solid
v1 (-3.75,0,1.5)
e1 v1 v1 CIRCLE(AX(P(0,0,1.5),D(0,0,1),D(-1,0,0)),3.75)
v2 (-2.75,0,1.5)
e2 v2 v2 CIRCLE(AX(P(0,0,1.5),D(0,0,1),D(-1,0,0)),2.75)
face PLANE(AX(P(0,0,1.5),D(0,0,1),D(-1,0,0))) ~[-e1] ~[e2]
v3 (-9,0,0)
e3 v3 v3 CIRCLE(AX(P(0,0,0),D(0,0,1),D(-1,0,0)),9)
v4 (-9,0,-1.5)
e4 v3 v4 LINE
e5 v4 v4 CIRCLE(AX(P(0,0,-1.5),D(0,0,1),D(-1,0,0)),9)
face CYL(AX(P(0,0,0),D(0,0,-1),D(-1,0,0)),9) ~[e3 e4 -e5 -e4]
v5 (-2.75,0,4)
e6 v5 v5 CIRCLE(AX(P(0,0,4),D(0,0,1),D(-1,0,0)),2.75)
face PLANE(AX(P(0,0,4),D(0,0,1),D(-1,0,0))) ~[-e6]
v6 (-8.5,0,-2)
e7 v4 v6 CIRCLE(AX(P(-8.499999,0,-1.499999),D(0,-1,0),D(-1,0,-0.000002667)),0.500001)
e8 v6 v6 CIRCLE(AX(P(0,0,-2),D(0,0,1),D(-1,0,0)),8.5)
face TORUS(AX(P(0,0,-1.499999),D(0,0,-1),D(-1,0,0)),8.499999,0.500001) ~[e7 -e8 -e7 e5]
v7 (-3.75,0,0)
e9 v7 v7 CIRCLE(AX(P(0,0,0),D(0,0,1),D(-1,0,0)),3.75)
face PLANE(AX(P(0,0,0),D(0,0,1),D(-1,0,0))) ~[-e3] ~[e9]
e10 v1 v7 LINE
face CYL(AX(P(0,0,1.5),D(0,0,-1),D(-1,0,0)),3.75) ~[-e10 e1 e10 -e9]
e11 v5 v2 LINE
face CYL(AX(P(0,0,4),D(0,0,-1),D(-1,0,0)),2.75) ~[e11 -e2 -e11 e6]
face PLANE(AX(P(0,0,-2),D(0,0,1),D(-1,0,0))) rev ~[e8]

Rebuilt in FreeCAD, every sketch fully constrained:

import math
import FreeCAD as App
import Part
import Sketcher
from FreeCAD import Vector
Q = App.Units.Quantity

doc = App.newDocument("Part")
params = doc.addObject("Spreadsheet::Sheet", "Params")
for row, (alias, value) in enumerate([
    ("sketch1_radius", "0.500001 mm"),
    ("sketch1_width", "1 mm"),
    ("sketch1_height", "6 mm"),
    ("sketch1_width2", "8.5 mm"),
    ("sketch1_height2", "2.5 mm"),
    ("revolution_angle", "360 deg"),
], start=1):
    params.set(f"A{row}", alias)
    params.set(f"B{row}", "=" + value)
    params.setAlias(f"B{row}", alias)

body = doc.addObject("PartDesign::Body", "Body")

# Sketch on XZ plane
sketch1 = body.newObject("Sketcher::SketchObject", "Sketch")
sketch1.AttachmentSupport = (doc.getObject("XZ_Plane"), [""])
sketch1.MapMode = "FlatFace"
sketch1.addGeometry([
    Part.LineSegment(Vector(0, -2, 0), Vector(0, 4, 0)),  # 0
    Part.LineSegment(Vector(0, 4, 0), Vector(-2.8, 4, 0)),  # 1
    Part.LineSegment(Vector(-2.8, 4, 0), Vector(-2.8, 1.5, 0)),  # 2
    Part.LineSegment(Vector(-2.8, 1.5, 0), Vector(-3.8, 1.5, 0)),  # 3
    Part.LineSegment(Vector(-3.8, 1.5, 0), Vector(-3.8, 0, 0)),  # 4
    Part.LineSegment(Vector(-3.8, 0, 0), Vector(-9, 0, 0)),  # 5
    Part.LineSegment(Vector(-9, 0, 0), Vector(-9, -1.5, 0)),  # 6
    Part.ArcOfCircle(Part.Circle(Vector(-8.5, -1.5, 0), Vector(0, 0, 1), 0.5), math.radians(-180), math.radians(-90)),  # 7
    Part.LineSegment(Vector(-8.5, -2, 0), Vector(0, -2, 0)),  # 8
], False)
sketch1.addConstraint([
    Sketcher.Constraint("Coincident", 0, 2, 1, 1),
    Sketcher.Constraint("Coincident", 1, 2, 2, 1),
    Sketcher.Constraint("Coincident", 2, 2, 3, 1),
    Sketcher.Constraint("Coincident", 3, 2, 4, 1),
    Sketcher.Constraint("Coincident", 4, 2, 5, 1),
    Sketcher.Constraint("Coincident", 5, 2, 6, 1),
    Sketcher.Constraint("Coincident", 6, 2, 7, 1),
    Sketcher.Constraint("Coincident", 7, 2, 8, 1),
    Sketcher.Constraint("Coincident", 8, 2, 0, 1),
    Sketcher.Constraint("Vertical", 0),
    Sketcher.Constraint("Horizontal", 1),
    Sketcher.Constraint("Vertical", 2),
    Sketcher.Constraint("Horizontal", 3),
    Sketcher.Constraint("Vertical", 4),
    Sketcher.Constraint("Horizontal", 5),
    Sketcher.Constraint("Vertical", 6),
    Sketcher.Constraint("Horizontal", 8),
    Sketcher.Constraint("PointOnObject", 0, 2, -2),
    Sketcher.Constraint("PointOnObject", 4, 2, -1),
    Sketcher.Constraint("Horizontal", 7, 3, 6, 2),
    Sketcher.Constraint("Equal", 4, 6),
    Sketcher.Constraint("Radius", 7, Q("0.500001 mm")),
    Sketcher.Constraint("DistanceX", 3, 2, 3, 1, Q("1 mm")),
    Sketcher.Constraint("DistanceY", 0, 1, 0, 2, Q("6 mm")),
    Sketcher.Constraint("DistanceX", 8, 1, 8, 2, Q("8.5 mm")),
    Sketcher.Constraint("DistanceY", 2, 2, 2, 1, Q("2.5 mm")),
    Sketcher.Constraint("DistanceX", 5, 2, -1, 1, Q("9 mm")),
    Sketcher.Constraint("DistanceX", 1, 2, 1, 1, Q("2.75 mm")),
])
sketch1.setExpression("Constraints[21]", "Params.sketch1_radius")
sketch1.setExpression("Constraints[22]", "Params.sketch1_width")
sketch1.setExpression("Constraints[23]", "Params.sketch1_height")
sketch1.setExpression("Constraints[24]", "Params.sketch1_width2")
sketch1.setExpression("Constraints[25]", "Params.sketch1_height2")
revolution = body.newObject("PartDesign::Revolution", "Revolution")
revolution.Profile = sketch1
revolution.ReferenceAxis = (sketch1, ["V_Axis"])
revolution.setExpression("Angle", "Params.revolution_angle")

doc.recompute()
